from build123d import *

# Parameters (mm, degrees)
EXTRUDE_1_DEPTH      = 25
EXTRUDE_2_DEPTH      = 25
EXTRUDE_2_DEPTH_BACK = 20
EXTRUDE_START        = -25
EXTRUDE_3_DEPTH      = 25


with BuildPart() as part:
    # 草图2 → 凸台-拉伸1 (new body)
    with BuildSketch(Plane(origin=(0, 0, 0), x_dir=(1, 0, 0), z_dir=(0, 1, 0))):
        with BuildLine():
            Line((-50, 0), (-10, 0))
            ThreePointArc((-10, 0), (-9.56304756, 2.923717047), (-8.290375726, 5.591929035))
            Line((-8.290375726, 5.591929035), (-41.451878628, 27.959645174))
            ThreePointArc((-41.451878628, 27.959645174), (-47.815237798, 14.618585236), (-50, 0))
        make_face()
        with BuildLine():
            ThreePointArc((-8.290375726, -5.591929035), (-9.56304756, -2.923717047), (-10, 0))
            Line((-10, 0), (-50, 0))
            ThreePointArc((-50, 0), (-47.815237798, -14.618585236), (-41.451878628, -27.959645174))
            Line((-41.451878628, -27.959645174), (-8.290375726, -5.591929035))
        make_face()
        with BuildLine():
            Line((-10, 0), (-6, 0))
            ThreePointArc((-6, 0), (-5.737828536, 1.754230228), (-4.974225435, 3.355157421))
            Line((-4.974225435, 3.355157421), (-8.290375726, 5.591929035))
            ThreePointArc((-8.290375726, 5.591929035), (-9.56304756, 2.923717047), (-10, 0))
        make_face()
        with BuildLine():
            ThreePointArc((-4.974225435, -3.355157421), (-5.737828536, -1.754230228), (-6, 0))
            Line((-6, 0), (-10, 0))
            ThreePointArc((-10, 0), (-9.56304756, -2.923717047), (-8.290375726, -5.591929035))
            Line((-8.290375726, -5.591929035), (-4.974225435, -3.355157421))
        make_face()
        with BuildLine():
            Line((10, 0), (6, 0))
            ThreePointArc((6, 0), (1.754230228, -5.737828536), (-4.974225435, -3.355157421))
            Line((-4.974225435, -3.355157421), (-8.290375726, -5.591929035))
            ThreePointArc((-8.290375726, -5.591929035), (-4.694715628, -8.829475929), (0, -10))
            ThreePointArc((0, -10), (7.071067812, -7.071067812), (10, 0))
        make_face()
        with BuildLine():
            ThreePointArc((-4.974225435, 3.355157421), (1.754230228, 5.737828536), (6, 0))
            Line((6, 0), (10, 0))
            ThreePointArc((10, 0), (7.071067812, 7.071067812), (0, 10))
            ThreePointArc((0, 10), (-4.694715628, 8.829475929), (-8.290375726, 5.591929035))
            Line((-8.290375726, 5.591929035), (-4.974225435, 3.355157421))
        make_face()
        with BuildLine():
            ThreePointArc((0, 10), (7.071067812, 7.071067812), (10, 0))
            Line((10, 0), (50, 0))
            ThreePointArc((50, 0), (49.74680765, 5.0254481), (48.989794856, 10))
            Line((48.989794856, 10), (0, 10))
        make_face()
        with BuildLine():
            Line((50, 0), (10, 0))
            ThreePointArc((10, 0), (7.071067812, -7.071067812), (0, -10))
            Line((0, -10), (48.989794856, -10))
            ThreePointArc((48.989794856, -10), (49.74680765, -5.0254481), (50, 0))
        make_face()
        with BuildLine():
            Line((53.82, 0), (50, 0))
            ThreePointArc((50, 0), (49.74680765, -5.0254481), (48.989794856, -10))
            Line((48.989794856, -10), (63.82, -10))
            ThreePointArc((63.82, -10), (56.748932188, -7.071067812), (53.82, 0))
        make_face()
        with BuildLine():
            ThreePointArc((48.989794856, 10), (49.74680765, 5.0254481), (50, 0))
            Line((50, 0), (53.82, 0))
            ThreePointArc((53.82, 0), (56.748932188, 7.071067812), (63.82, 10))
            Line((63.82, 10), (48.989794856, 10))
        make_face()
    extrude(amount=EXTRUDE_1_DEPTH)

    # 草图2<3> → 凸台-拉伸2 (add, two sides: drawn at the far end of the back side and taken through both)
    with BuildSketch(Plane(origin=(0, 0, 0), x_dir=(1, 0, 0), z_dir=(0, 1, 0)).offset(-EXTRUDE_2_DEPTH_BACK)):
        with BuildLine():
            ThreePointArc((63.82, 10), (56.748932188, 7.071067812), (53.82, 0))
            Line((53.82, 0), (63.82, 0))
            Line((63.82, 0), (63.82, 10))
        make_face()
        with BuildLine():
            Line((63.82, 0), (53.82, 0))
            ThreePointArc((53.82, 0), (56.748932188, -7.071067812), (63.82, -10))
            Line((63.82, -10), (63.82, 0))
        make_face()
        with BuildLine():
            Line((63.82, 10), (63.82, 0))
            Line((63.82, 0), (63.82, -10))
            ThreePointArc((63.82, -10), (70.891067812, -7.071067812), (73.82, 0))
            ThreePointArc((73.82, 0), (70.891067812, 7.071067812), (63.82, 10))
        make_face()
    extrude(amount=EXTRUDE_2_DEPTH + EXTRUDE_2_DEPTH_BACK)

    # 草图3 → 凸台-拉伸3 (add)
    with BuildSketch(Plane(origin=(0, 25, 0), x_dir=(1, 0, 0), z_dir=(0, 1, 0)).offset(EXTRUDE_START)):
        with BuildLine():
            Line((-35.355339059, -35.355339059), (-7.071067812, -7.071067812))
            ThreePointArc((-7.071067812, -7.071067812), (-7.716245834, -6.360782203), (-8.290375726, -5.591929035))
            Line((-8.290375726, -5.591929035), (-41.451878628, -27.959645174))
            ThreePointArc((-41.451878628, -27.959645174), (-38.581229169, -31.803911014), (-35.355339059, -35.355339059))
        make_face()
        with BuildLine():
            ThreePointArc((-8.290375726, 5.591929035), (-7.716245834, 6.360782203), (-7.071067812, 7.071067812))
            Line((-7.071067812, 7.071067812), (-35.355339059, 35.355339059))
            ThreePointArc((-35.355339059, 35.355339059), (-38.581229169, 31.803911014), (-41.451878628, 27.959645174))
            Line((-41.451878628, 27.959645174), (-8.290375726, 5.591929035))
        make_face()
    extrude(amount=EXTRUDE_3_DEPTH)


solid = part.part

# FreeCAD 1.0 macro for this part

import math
import FreeCAD as App
import Part
import Sketcher
Q = App.Units.Quantity

doc = App.newDocument("Part")
params = doc.addObject("Spreadsheet::Sheet", "Params")
for row, (alias, value) in enumerate([
    ("sketch1_radius", "50 mm"),
    ("sketch1_radius2", "10 mm"),
    ("sketch1_radius3", "6 mm"),
    ("sketch1_width", "63.82 mm"),
    ("pad1_length", "25 mm"),
    ("sketch2_radius", "10 mm"),
    ("pad2_length", "25 mm"),
    ("pad2_length2", "20 mm"),
    ("sketch3_radius", "10 mm"),
    ("sketch3_radius2", "50 mm"),
    ("pad3_length", "25 mm"),
], start=1):
    params.set(f"A{row}", alias)
    params.set(f"B{row}", "=" + value)
    params.setAlias(f"B{row}", alias)

body = doc.addObject("PartDesign::Body", "Body")

# Sketch on XZ plane
sketch1 = body.newObject("Sketcher::SketchObject", "Sketch")
sketch1.AttachmentSupport = (doc.getObject("XZ_Plane"), [""])
sketch1.MapMode = "FlatFace"
sketch1.addGeometry([
    Part.LineSegment(App.Vector(-8.3, -5.6, 0), App.Vector(-41.5, -28, 0)),  # 0
    Part.ArcOfCircle(Part.Circle(App.Vector(0, 0, 0), App.Vector(0, 0, 1), 50), math.radians(-180), math.radians(-146)),  # 1
    Part.ArcOfCircle(Part.Circle(App.Vector(0, 0, 0), App.Vector(0, 0, 1), 50), math.radians(146), math.radians(180)),  # 2
    Part.LineSegment(App.Vector(-41.5, 28, 0), App.Vector(-8.3, 5.6, 0)),  # 3
    Part.ArcOfCircle(Part.Circle(App.Vector(0, 0, 0), App.Vector(0, 0, 1), 10), math.radians(90), math.radians(146)),  # 4
    Part.LineSegment(App.Vector(0, 10, 0), App.Vector(63.8, 10, 0)),  # 5
    Part.ArcOfCircle(Part.Circle(App.Vector(63.8, 0, 0), App.Vector(0, 0, 1), 10), math.radians(90), math.radians(180)),  # 6
    Part.ArcOfCircle(Part.Circle(App.Vector(63.8, 0, 0), App.Vector(0, 0, 1), 10), math.radians(180), math.radians(270)),  # 7
    Part.LineSegment(App.Vector(63.8, -10, 0), App.Vector(0, -10, 0)),  # 8
    Part.ArcOfCircle(Part.Circle(App.Vector(0, 0, 0), App.Vector(0, 0, 1), 10), math.radians(-146), math.radians(-90)),  # 9
    Part.ArcOfCircle(Part.Circle(App.Vector(0, 0, 0), App.Vector(0, 0, 1), 6), math.radians(0), math.radians(146)),  # 10
    Part.ArcOfCircle(Part.Circle(App.Vector(0, 0, 0), App.Vector(0, 0, 1), 6), math.radians(146), math.radians(180)),  # 11
    Part.ArcOfCircle(Part.Circle(App.Vector(0, 0, 0), App.Vector(0, 0, 1), 6), math.radians(180), math.radians(214)),  # 12
    Part.ArcOfCircle(Part.Circle(App.Vector(0, 0, 0), App.Vector(0, 0, 1), 6), math.radians(-146), math.radians(0)),  # 13
], False)
sketch1.addConstraint([
    Sketcher.Constraint("Coincident", 0, 2, 1, 2),
    Sketcher.Constraint("Tangent", 1, 1, 2, 2),
    Sketcher.Constraint("Coincident", 2, 1, 3, 1),
    Sketcher.Constraint("Coincident", 3, 2, 4, 2),
    Sketcher.Constraint("Tangent", 4, 1, 5, 1),
    Sketcher.Constraint("Tangent", 5, 2, 6, 1),
    Sketcher.Constraint("Tangent", 6, 2, 7, 1),
    Sketcher.Constraint("Tangent", 7, 2, 8, 1),
    Sketcher.Constraint("Tangent", 8, 2, 9, 2),
    Sketcher.Constraint("Coincident", 9, 1, 0, 1),
    Sketcher.Constraint("Tangent", 10, 2, 11, 1),
    Sketcher.Constraint("Tangent", 11, 2, 12, 1),
    Sketcher.Constraint("Tangent", 12, 2, 13, 1),
    Sketcher.Constraint("Tangent", 13, 2, 10, 1),
    Sketcher.Constraint("Horizontal", 5),
    Sketcher.Constraint("Horizontal", 8),
    Sketcher.Constraint("Coincident", 1, 3, -1, 1),
    Sketcher.Constraint("Coincident", 4, 3, -1, 1),
    Sketcher.Constraint("Coincident", 9, 3, -1, 1),
    Sketcher.Constraint("Coincident", 10, 3, -1, 1),
    Sketcher.Constraint("Equal", 1, 2),
    Sketcher.Constraint("Equal", 4, 6),
    Sketcher.Constraint("Equal", 6, 7),
    Sketcher.Constraint("Equal", 10, 11),
    Sketcher.Constraint("PointOnObject", 1, 1, -1),
    Sketcher.Constraint("PointOnObject", 6, 2, -1),
    Sketcher.Constraint("PointOnObject", 11, 2, -1),
    Sketcher.Constraint("PointOnObject", 13, 2, -1),
    Sketcher.Constraint("Vertical", 0, 2, 2, 1),
    Sketcher.Constraint("Vertical", 3, 2, 9, 1),
    Sketcher.Constraint("Vertical", 10, 2, 12, 2),
    Sketcher.Constraint("Radius", 1, Q("50 mm")),
    Sketcher.Constraint("Radius", 4, Q("10 mm")),
    Sketcher.Constraint("Radius", 10, Q("6 mm")),
    Sketcher.Constraint("Angle", 0, Q("-146 deg")),
    Sketcher.Constraint("DistanceX", 5, 1, 5, 2, Q("63.82 mm")),
    Sketcher.Constraint("DistanceX", 0, 2, -1, 1, Q("41.451879 mm")),
    Sketcher.Constraint("DistanceX", 3, 2, 10, 2, Q("3.31615 mm")),
])
sketch1.setExpression("Constraints[31]", "Params.sketch1_radius")
sketch1.setExpression("Constraints[32]", "Params.sketch1_radius2")
sketch1.setExpression("Constraints[33]", "Params.sketch1_radius3")
sketch1.setExpression("Constraints[35]", "Params.sketch1_width")
pad1 = body.newObject("PartDesign::Pad", "Pad")
pad1.Profile = sketch1
pad1.setExpression("Length", "Params.pad1_length")
pad1.Reversed = True

# Sketch on XZ plane
sketch2 = body.newObject("Sketcher::SketchObject", "Sketch001")
sketch2.AttachmentSupport = (doc.getObject("XZ_Plane"), [""])
sketch2.MapMode = "FlatFace"
sketch2.addGeometry([
    Part.ArcOfCircle(Part.Circle(App.Vector(64, 0, 0), App.Vector(0, 0, 1), 10), math.radians(180), math.radians(270)),
    Part.ArcOfCircle(Part.Circle(App.Vector(64, 0, 0), App.Vector(0, 0, 1), 10), math.radians(90), math.radians(180)),
    Part.ArcOfCircle(Part.Circle(App.Vector(64, 0, 0), App.Vector(0, 0, 1), 10), math.radians(0), math.radians(90)),
    Part.ArcOfCircle(Part.Circle(App.Vector(64, 0, 0), App.Vector(0, 0, 1), 10), math.radians(-90), math.radians(0)),
], False)
sketch2.addConstraint([
    Sketcher.Constraint("Tangent", 0, 1, 1, 2),
    Sketcher.Constraint("Tangent", 1, 1, 2, 2),
    Sketcher.Constraint("Tangent", 2, 1, 3, 2),
    Sketcher.Constraint("Tangent", 3, 1, 0, 2),
    Sketcher.Constraint("Equal", 0, 1),
    Sketcher.Constraint("Symmetric", 1, 1, 3, 1, -1),
    Sketcher.Constraint("PointOnObject", 0, 1, -1),
    Sketcher.Constraint("PointOnObject", 2, 1, -1),
    Sketcher.Constraint("Vertical", 3, 3, 1, 1),
    Sketcher.Constraint("Radius", 0, Q("10 mm")),
    Sketcher.Constraint("DistanceX", -1, 1, 0, 3, Q("63.82 mm")),
])
sketch2.setExpression("Constraints[9]", "Params.sketch2_radius")
pad2 = body.newObject("PartDesign::Pad", "Pad001")
pad2.Profile = sketch2
pad2.Type = "TwoLengths"
pad2.setExpression("Length", "Params.pad2_length")
pad2.setExpression("Length2", "Params.pad2_length2")
pad2.Reversed = True

# Sketch on XZ plane
sketch3 = body.newObject("Sketcher::SketchObject", "Sketch002")
sketch3.AttachmentSupport = (doc.getObject("XZ_Plane"), [""])
sketch3.MapMode = "FlatFace"
sketch3.addGeometry([
    Part.LineSegment(App.Vector(-35.4, 35.4, 0), App.Vector(-7.1, 7.1, 0)),  # 0
    Part.ArcOfCircle(Part.Circle(App.Vector(0, 0, 0), App.Vector(0, 0, 1), 10), math.radians(135), math.radians(146)),  # 1
    Part.LineSegment(App.Vector(-8.3, 5.6, 0), App.Vector(-41.5, 28, 0)),  # 2
    Part.ArcOfCircle(Part.Circle(App.Vector(0, 0, 0), App.Vector(0, 0, 1), 50), math.radians(135), math.radians(146)),  # 3
    Part.ArcOfCircle(Part.Circle(App.Vector(0, 0, 0), App.Vector(0, 0, 1), 10), math.radians(-146), math.radians(-135)),  # 4
    Part.LineSegment(App.Vector(-7.1, -7.1, 0), App.Vector(-35.4, -35.4, 0)),  # 5
    Part.ArcOfCircle(Part.Circle(App.Vector(0, 0, 0), App.Vector(0, 0, 1), 50), math.radians(-146), math.radians(-135)),  # 6
    Part.LineSegment(App.Vector(-41.5, -28, 0), App.Vector(-8.3, -5.6, 0)),  # 7
], False)
sketch3.addConstraint([
    Sketcher.Constraint("Coincident", 0, 2, 1, 1),
    Sketcher.Constraint("Coincident", 1, 2, 2, 1),
    Sketcher.Constraint("Coincident", 2, 2, 3, 2),
    Sketcher.Constraint("Coincident", 3, 1, 0, 1),
    Sketcher.Constraint("Coincident", 4, 2, 5, 1),
    Sketcher.Constraint("Coincident", 5, 2, 6, 2),
    Sketcher.Constraint("Coincident", 6, 1, 7, 1),
    Sketcher.Constraint("Coincident", 7, 2, 4, 1),
    Sketcher.Constraint("Coincident", 1, 3, -1, 1),
    Sketcher.Constraint("Coincident", 3, 3, -1, 1),
    Sketcher.Constraint("Coincident", 4, 3, -1, 1),
    Sketcher.Constraint("Coincident", 6, 3, -1, 1),
    Sketcher.Constraint("Equal", 1, 4),
    Sketcher.Constraint("Equal", 3, 6),
    Sketcher.Constraint("Perpendicular", 0, 5),
    Sketcher.Constraint("Vertical", 0, 2, 4, 2),
    Sketcher.Constraint("Vertical", 3, 1, 5, 2),
    Sketcher.Constraint("Vertical", 2, 2, 6, 1),
    Sketcher.Constraint("Vertical", 1, 2, 7, 2),
    Sketcher.Constraint("Radius", 1, Q("10 mm")),
    Sketcher.Constraint("Radius", 3, Q("50 mm")),
    Sketcher.Constraint("Angle", 2, Q("146 deg")),
    Sketcher.Constraint("DistanceY", -1, 1, 1, 2, Q("5.591929 mm")),
    Sketcher.Constraint("DistanceX", 3, 1, -1, 1, Q("35.355339 mm")),
])
sketch3.setExpression("Constraints[19]", "Params.sketch3_radius")
sketch3.setExpression("Constraints[20]", "Params.sketch3_radius2")
pad3 = body.newObject("PartDesign::Pad", "Pad002")
pad3.Profile = sketch3
pad3.setExpression("Length", "Params.pad3_length")
pad3.Reversed = True

doc.recompute()
